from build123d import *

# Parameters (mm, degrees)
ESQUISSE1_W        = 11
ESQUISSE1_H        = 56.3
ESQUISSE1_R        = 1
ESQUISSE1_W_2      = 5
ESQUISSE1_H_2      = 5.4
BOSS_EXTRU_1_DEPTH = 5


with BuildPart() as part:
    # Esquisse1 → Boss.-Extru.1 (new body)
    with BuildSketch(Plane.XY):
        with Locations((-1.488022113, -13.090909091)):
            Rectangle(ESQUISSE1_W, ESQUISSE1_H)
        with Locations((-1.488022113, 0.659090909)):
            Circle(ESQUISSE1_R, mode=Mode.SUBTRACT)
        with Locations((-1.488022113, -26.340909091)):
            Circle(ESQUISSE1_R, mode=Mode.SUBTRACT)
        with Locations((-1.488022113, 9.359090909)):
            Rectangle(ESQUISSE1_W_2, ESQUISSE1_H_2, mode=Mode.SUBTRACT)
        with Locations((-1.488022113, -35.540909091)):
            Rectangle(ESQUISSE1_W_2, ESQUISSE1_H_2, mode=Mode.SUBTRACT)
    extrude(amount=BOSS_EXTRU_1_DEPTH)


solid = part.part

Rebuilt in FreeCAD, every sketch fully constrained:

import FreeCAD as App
import Part
import Sketcher
from FreeCAD import Vector


def add_polygon(sketch, points):
    """Adds a closed chain of lines whose ends are joined by coincident constraints."""
    first, n = sketch.GeometryCount, len(points)
    for a, b in zip(points, points[1:] + points[:1]):
        sketch.addGeometry(Part.LineSegment(App.Vector(*a, 0), App.Vector(*b, 0)), False)
    for i in range(n):
        sketch.addConstraint(Sketcher.Constraint("Coincident", first + i, 2, first + (i + 1) % n, 1))

doc = App.newDocument("Part")
body = doc.addObject("PartDesign::Body", "Body")

# Sketch on XY plane
sketch1 = body.newObject("Sketcher::SketchObject", "Sketch")
sketch1.AttachmentSupport = (doc.getObject("XY_Plane"), [""])
sketch1.MapMode = "FlatFace"
add_polygon(sketch1, [(-6.988022, 15.059091), (-6.988022, -41.240909), (4.011978, -41.240909), (4.011978, 15.059091)])  # lines 0-3
add_polygon(sketch1, [(1.011978, -38.240909), (-3.988022, -38.240909), (-3.988022, -32.840909), (1.011978, -32.840909)])  # lines 4-7
sketch1.addGeometry(Part.Circle(Vector(-1.488022, -26.340909, 0), Vector(0, 0, 1), 1), False)  # 8
sketch1.addGeometry(Part.Circle(Vector(-1.488022, 0.659091, 0), Vector(0, 0, 1), 1), False)  # 9
add_polygon(sketch1, [(1.011978, 6.659091), (-3.988022, 6.659091), (-3.988022, 12.059091), (1.011978, 12.059091)])  # lines 10-13
sketch1.addConstraint(Sketcher.Constraint("Vertical", 0))
sketch1.addConstraint(Sketcher.Constraint("Horizontal", 1))
sketch1.addConstraint(Sketcher.Constraint("Vertical", 2))
sketch1.addConstraint(Sketcher.Constraint("Horizontal", 3))
sketch1.addConstraint(Sketcher.Constraint("Horizontal", 4))
sketch1.addConstraint(Sketcher.Constraint("Vertical", 5))
sketch1.addConstraint(Sketcher.Constraint("Horizontal", 6))
sketch1.addConstraint(Sketcher.Constraint("Vertical", 7))
sketch1.addConstraint(Sketcher.Constraint("Horizontal", 10))
sketch1.addConstraint(Sketcher.Constraint("Vertical", 11))
sketch1.addConstraint(Sketcher.Constraint("Horizontal", 12))
sketch1.addConstraint(Sketcher.Constraint("Vertical", 13))
sketch1.addConstraint(Sketcher.Constraint("Equal", 8, 9))
sketch1.addConstraint(Sketcher.Constraint("Vertical", 8, 3, 9, 3))
sketch1.addConstraint(Sketcher.Constraint("Vertical", 5, 2, 10, 2))
sketch1.addConstraint(Sketcher.Constraint("Vertical", 7, 2, 12, 2))
sketch1.addConstraint(Sketcher.Constraint("Equal", 7, 11))
sketch1.addConstraint(Sketcher.Constraint("Diameter", 8, 2.0))
sketch1.addConstraint(Sketcher.Constraint("DistanceX", 1, 1, 1, 2, 11.0))
sketch1.addConstraint(Sketcher.Constraint("DistanceX", 4, 2, 4, 1, 5.0))
sketch1.addConstraint(Sketcher.Constraint("DistanceY", 0, 2, 0, 1, 56.3))
sketch1.addConstraint(Sketcher.Constraint("DistanceY", 5, 1, 5, 2, 5.4))
sketch1.addConstraint(Sketcher.Constraint("DistanceY", 8, 3, 9, 3, 27.0))
sketch1.addConstraint(Sketcher.Constraint("DistanceX", 0, 2, 4, 2, 3.0))
sketch1.addConstraint(Sketcher.Constraint("DistanceY", 0, 2, 4, 2, 3.0))
sketch1.addConstraint(Sketcher.Constraint("DistanceY", 9, 3, 10, 2, 6.0))
sketch1.addConstraint(Sketcher.Constraint("DistanceY", 11, 2, 3, 2, 3.0))
sketch1.addConstraint(Sketcher.Constraint("DistanceX", 0, 2, 8, 3, 5.5))
sketch1.addConstraint(Sketcher.Constraint("DistanceY", 8, 3, -1, 1, 26.340909))
sketch1.addConstraint(Sketcher.Constraint("DistanceX", 8, 3, -1, 1, 1.488022))
pad1 = body.newObject("PartDesign::Pad", "Pad")
pad1.Profile = sketch1
pad1.Length = 5

doc.recompute()
